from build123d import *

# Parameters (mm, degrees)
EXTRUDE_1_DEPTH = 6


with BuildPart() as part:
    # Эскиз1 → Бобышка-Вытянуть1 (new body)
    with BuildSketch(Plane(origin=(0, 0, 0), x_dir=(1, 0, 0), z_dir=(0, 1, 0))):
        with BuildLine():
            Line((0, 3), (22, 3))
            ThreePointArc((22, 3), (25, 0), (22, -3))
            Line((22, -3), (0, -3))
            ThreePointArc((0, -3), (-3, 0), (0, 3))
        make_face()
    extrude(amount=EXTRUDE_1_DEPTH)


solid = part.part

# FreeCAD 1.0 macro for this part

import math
import FreeCAD as App
import Part
import Sketcher
from FreeCAD import Vector
Q = App.Units.Quantity

doc = App.newDocument("Part")
params = doc.addObject("Spreadsheet::Sheet", "Params")
for row, (alias, value) in enumerate([
    ("sketch1_radius", "3 mm"),
    ("sketch1_width", "22 mm"),
    ("pad1_length", "6 mm"),
], start=1):
    params.set(f"A{row}", alias)
    params.set(f"B{row}", "=" + value)
    params.setAlias(f"B{row}", alias)

body = doc.addObject("PartDesign::Body", "Body")

# Sketch on XZ plane
sketch1 = body.newObject("Sketcher::SketchObject", "Sketch")
sketch1.AttachmentSupport = (doc.getObject("XZ_Plane"), [""])
sketch1.MapMode = "FlatFace"
sketch1.addGeometry([
    Part.LineSegment(Vector(22, -3, 0), Vector(0, -3, 0)),
    Part.ArcOfCircle(Part.Circle(Vector(0, 0, 0), Vector(0, 0, 1), 3), math.radians(90), math.radians(270)),
    Part.LineSegment(Vector(0, 3, 0), Vector(22, 3, 0)),
    Part.ArcOfCircle(Part.Circle(Vector(22, 0, 0), Vector(0, 0, 1), 3), math.radians(-90), math.radians(90)),
], False)
sketch1.addConstraint([
    Sketcher.Constraint("Tangent", 0, 2, 1, 2),
    Sketcher.Constraint("Tangent", 1, 1, 2, 1),
    Sketcher.Constraint("Tangent", 2, 2, 3, 2),
    Sketcher.Constraint("Tangent", 3, 1, 0, 1),
    Sketcher.Constraint("Horizontal", 0),
    Sketcher.Constraint("Horizontal", 2),
    Sketcher.Constraint("Coincident", 1, 3, -1, 1),
    Sketcher.Constraint("Radius", 1, Q("3 mm")),
    Sketcher.Constraint("DistanceX", 0, 2, 0, 1, Q("22 mm")),
])
sketch1.setExpression("Constraints[7]", "Params.sketch1_radius")
sketch1.setExpression("Constraints[8]", "Params.sketch1_width")
pad1 = body.newObject("PartDesign::Pad", "Pad")
pad1.Profile = sketch1
pad1.setExpression("Length", "Params.pad1_length")
pad1.Reversed = True

doc.recompute()
